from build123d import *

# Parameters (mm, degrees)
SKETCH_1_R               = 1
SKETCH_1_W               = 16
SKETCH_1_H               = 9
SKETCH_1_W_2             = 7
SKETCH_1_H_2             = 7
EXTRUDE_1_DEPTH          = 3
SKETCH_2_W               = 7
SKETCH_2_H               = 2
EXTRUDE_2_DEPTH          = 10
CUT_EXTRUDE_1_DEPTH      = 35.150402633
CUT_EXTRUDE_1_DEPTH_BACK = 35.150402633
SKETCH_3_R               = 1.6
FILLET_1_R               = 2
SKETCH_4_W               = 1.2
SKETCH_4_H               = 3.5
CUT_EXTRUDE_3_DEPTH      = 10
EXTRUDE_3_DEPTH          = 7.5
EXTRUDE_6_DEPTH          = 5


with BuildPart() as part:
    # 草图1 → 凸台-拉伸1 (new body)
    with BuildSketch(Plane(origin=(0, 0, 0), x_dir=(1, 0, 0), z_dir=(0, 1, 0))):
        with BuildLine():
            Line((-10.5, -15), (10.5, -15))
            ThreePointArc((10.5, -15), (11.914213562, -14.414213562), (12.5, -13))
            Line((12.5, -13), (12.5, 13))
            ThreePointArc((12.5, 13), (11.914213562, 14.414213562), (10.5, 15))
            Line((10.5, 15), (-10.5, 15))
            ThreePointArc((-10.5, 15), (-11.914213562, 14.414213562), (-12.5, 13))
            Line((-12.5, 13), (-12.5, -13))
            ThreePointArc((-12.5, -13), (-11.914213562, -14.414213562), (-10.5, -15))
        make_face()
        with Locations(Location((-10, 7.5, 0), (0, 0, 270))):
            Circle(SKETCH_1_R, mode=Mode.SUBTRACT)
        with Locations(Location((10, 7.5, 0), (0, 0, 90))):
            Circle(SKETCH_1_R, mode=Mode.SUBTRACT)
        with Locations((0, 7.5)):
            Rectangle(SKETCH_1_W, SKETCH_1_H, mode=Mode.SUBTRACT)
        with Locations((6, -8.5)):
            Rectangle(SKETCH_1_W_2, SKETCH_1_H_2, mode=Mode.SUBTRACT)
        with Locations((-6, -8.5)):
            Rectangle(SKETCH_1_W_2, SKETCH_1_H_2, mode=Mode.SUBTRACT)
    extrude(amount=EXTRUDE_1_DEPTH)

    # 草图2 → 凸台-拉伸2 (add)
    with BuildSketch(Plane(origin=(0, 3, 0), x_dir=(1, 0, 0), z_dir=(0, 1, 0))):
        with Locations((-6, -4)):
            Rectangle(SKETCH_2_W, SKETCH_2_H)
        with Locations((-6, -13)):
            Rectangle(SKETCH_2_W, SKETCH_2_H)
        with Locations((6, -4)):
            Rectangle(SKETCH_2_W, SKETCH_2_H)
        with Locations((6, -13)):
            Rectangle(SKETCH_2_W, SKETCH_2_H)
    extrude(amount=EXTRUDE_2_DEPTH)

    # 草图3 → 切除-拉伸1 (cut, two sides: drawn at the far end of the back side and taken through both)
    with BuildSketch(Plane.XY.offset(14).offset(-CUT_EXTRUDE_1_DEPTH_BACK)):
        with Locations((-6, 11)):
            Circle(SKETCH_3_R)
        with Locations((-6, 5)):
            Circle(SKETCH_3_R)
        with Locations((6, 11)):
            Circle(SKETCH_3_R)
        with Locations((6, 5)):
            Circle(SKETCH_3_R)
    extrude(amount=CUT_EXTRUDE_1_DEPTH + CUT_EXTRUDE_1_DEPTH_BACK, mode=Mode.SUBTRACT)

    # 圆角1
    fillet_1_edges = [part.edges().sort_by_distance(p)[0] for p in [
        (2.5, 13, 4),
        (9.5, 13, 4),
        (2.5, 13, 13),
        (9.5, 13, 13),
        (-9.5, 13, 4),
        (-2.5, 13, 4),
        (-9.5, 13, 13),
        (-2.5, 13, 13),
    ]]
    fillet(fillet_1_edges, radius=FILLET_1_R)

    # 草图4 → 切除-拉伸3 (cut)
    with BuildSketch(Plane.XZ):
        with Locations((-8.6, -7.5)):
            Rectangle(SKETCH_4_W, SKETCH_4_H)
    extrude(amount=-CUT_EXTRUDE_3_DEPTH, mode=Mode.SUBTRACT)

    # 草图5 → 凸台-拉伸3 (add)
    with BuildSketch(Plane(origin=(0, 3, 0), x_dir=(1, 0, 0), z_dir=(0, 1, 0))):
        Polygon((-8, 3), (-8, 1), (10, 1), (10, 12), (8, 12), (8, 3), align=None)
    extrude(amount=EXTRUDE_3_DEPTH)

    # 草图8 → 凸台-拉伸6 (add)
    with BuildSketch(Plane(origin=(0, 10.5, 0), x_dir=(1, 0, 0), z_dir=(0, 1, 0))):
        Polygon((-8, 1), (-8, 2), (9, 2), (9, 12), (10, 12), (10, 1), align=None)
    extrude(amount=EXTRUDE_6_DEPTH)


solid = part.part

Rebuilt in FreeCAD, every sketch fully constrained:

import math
import FreeCAD as App
import Part
import Sketcher

V = App.Vector


def edges_at(feature, points):
    """Names of the edges that pass closest to the given points."""
    edges = feature.Shape.Edges
    near = lambda p: min(range(len(edges)), key=lambda i: edges[i].distToShape(Part.Vertex(*p))[0])
    return sorted({f"Edge{near(p) + 1}" for p in points})


def add_polygon(sketch, points):
    """Adds a closed chain of lines whose ends are joined by coincident constraints."""
    first, n = sketch.GeometryCount, len(points)
    for a, b in zip(points, points[1:] + points[:1]):
        sketch.addGeometry(Part.LineSegment(App.Vector(*a, 0), App.Vector(*b, 0)), False)
    for i in range(n):
        sketch.addConstraint(Sketcher.Constraint("Coincident", first + i, 2, first + (i + 1) % n, 1))

doc = App.newDocument("Part")
params = doc.addObject("Spreadsheet::Sheet", "Params")
for row, (alias, value) in enumerate([
    ("sketch1_diameter", "2 mm"),
    ("sketch1_radius", "2 mm"),
    ("sketch1_width", "21 mm"),
    ("sketch1_width2", "7 mm"),
    ("sketch1_width3", "16 mm"),
    ("pad1_length", "3 mm"),
    ("sketch2_width", "7 mm"),
    ("sketch2_height", "2 mm"),
    ("pad2_length", "10 mm"),
    ("sketch3_diameter", "3.2 mm"),
    ("fillet_radius", "2 mm"),
    ("sketch4_width", "1.2 mm"),
    ("sketch4_height", "3.5 mm"),
    ("pocket2_length", "10 mm"),
    ("sketch5_width", "18 mm"),
    ("sketch5_width2", "2 mm"),
    ("sketch5_height", "11 mm"),
    ("pad3_length", "7.5 mm"),
    ("sketch6_width", "18 mm"),
    ("sketch6_width2", "1 mm"),
    ("sketch6_height", "11 mm"),
    ("pad4_length", "5 mm"),
], start=1):
    params.set(f"A{row}", alias)
    params.set(f"B{row}", "=" + value)
    params.setAlias(f"B{row}", alias)

body = doc.addObject("PartDesign::Body", "Body")

sketch1 = doc.addObject("Sketcher::SketchObject", "Sketch")
body.addObject(sketch1)
sketch1.AttachmentSupport = (doc.XZ_Plane, [""])
sketch1.MapMode = "FlatFace"
sketch1.addGeometry(Part.LineSegment(V(-10.5, 15, 0), V(10.5, 15, 0)), False)
sketch1.addGeometry(Part.ArcOfCircle(Part.Circle(V(10.5, 13, 0), V(0, 0, 1), 2), math.radians(0), math.radians(90)), False)
sketch1.addGeometry(Part.LineSegment(V(12.5, 13, 0), V(12.5, -13, 0)), False)
sketch1.addGeometry(Part.ArcOfCircle(Part.Circle(V(10.5, -13, 0), V(0, 0, 1), 2), math.radians(-90), math.radians(0)), False)
sketch1.addGeometry(Part.LineSegment(V(10.5, -15, 0), V(-10.5, -15, 0)), False)
sketch1.addGeometry(Part.ArcOfCircle(Part.Circle(V(-10.5, -13, 0), V(0, 0, 1), 2), math.radians(-180), math.radians(-90)), False)
sketch1.addGeometry(Part.LineSegment(V(-12.5, -13, 0), V(-12.5, 13, 0)), False)
sketch1.addGeometry(Part.ArcOfCircle(Part.Circle(V(-10.5, 13, 0), V(0, 0, 1), 2), math.radians(90), math.radians(180)), False)
add_polygon(sketch1, [(-2.5, 12), (-9.5, 12), (-9.5, 5), (-2.5, 5)])
add_polygon(sketch1, [(9.5, 12), (2.5, 12), (2.5, 5), (9.5, 5)])
sketch1.addGeometry(Part.Circle(V(-10, -7.5, 0), V(0, 0, 1), 1), False)
add_polygon(sketch1, [(8, -3), (-8, -3), (-8, -12), (8, -12)])
sketch1.addGeometry(Part.Circle(V(10, -7.5, 0), V(0, 0, 1), 1), False)
sketch1.addConstraint([
    Sketcher.Constraint("Tangent", 0, 2, 1, 2),
    Sketcher.Constraint("Tangent", 1, 1, 2, 1),
    Sketcher.Constraint("Tangent", 2, 2, 3, 2),
    Sketcher.Constraint("Tangent", 3, 1, 4, 1),
    Sketcher.Constraint("Tangent", 4, 2, 5, 2),
    Sketcher.Constraint("Tangent", 5, 1, 6, 1),
    Sketcher.Constraint("Tangent", 6, 2, 7, 2),
    Sketcher.Constraint("Tangent", 7, 1, 0, 1),
    Sketcher.Constraint("Horizontal", 0),
    Sketcher.Constraint("Vertical", 2),
    Sketcher.Constraint("Horizontal", 4),
    Sketcher.Constraint("Vertical", 6),
    Sketcher.Constraint("Horizontal", 8),
    Sketcher.Constraint("Vertical", 9),
    Sketcher.Constraint("Horizontal", 10),
    Sketcher.Constraint("Vertical", 11),
    Sketcher.Constraint("Horizontal", 12),
    Sketcher.Constraint("Vertical", 13),
    Sketcher.Constraint("Horizontal", 14),
    Sketcher.Constraint("Vertical", 15),
    Sketcher.Constraint("Horizontal", 17),
    Sketcher.Constraint("Vertical", 18),
    Sketcher.Constraint("Horizontal", 19),
    Sketcher.Constraint("Vertical", 20),
    Sketcher.Constraint("Equal", 1, 3),
    Sketcher.Constraint("Equal", 3, 5),
    Sketcher.Constraint("Equal", 5, 7),
    Sketcher.Constraint("Equal", 16, 21),
    Sketcher.Constraint("Symmetric", 1, 3, 5, 3, -1, 1),
    Sketcher.Constraint("Symmetric", 16, 3, 21, 3, -2),
    Sketcher.Constraint("Symmetric", 11, 2, 12, 2, -2),
    Sketcher.Constraint("Symmetric", 9, 2, 14, 2, -2),
    Sketcher.Constraint("Equal", 14, 9),
    Sketcher.Constraint("Diameter", 16, 2.0),
    Sketcher.Constraint("Radius", 1, 2.0),
    Sketcher.Constraint("DistanceX", 0, 1, 0, 2, 21.0),
    Sketcher.Constraint("DistanceX", 8, 2, 8, 1, 7.0),
    Sketcher.Constraint("DistanceX", 17, 2, 17, 1, 16.0),
    Sketcher.Constraint("DistanceY", 2, 2, 2, 1, 26.0),
    Sketcher.Constraint("DistanceY", 18, 2, 18, 1, 9.0),
    Sketcher.Constraint("DistanceX", 16, 3, -1, 1, 10.0),
    Sketcher.Constraint("DistanceY", -1, 1, 8, 2, 12.0),
    Sketcher.Constraint("DistanceX", 17, 2, -1, 1, 8.0),
    Sketcher.Constraint("DistanceY", 17, 2, -1, 1, 3.0),
    Sketcher.Constraint("DistanceX", 7, 3, 8, 2, 1.0),
    Sketcher.Constraint("DistanceY", 16, 3, -1, 1, 7.5),
])
sketch1.setExpression("Constraints[45]", "Params.sketch1_diameter")
sketch1.setExpression("Constraints[46]", "Params.sketch1_radius")
sketch1.setExpression("Constraints[47]", "Params.sketch1_width")
sketch1.setExpression("Constraints[48]", "Params.sketch1_width2")
sketch1.setExpression("Constraints[49]", "Params.sketch1_width3")
pad1 = doc.addObject("PartDesign::Pad", "Pad")
body.addObject(pad1)
pad1.Profile = sketch1
pad1.setExpression("Length", "Params.pad1_length")
pad1.Reversed = True

sketch2 = doc.addObject("Sketcher::SketchObject", "Sketch001")
body.addObject(sketch2)
sketch2.AttachmentSupport = (doc.XZ_Plane, [""])
sketch2.MapMode = "FlatFace"
sketch2.AttachmentOffset = App.Placement(V(0, 0, -3), App.Rotation())
add_polygon(sketch2, [(-9.5, 3), (-9.5, 5), (-2.5, 5), (-2.5, 3)])
add_polygon(sketch2, [(-9.5, 12), (-9.5, 14), (-2.5, 14), (-2.5, 12)])
add_polygon(sketch2, [(2.5, 3), (2.5, 5), (9.5, 5), (9.5, 3)])
add_polygon(sketch2, [(2.5, 12), (2.5, 14), (9.5, 14), (9.5, 12)])
sketch2.addConstraint([
    Sketcher.Constraint("Vertical", 0),
    Sketcher.Constraint("Horizontal", 1),
    Sketcher.Constraint("Vertical", 2),
    Sketcher.Constraint("Horizontal", 3),
    Sketcher.Constraint("Vertical", 4),
    Sketcher.Constraint("Horizontal", 5),
    Sketcher.Constraint("Vertical", 6),
    Sketcher.Constraint("Horizontal", 7),
    Sketcher.Constraint("Vertical", 8),
    Sketcher.Constraint("Horizontal", 9),
    Sketcher.Constraint("Vertical", 10),
    Sketcher.Constraint("Horizontal", 11),
    Sketcher.Constraint("Vertical", 12),
    Sketcher.Constraint("Horizontal", 13),
    Sketcher.Constraint("Vertical", 14),
    Sketcher.Constraint("Horizontal", 15),
    Sketcher.Constraint("Symmetric", 1, 2, 8, 2, -2),
    Sketcher.Constraint("Symmetric", 3, 2, 10, 2, -2),
    Sketcher.Constraint("Symmetric", 5, 2, 12, 2, -2),
    Sketcher.Constraint("Symmetric", 7, 2, 14, 2, -2),
    Sketcher.Constraint("Vertical", 3, 2, 4, 2),
    Sketcher.Constraint("Vertical", 2, 2, 5, 2),
    Sketcher.Constraint("Equal", 2, 4),
    Sketcher.Constraint("DistanceX", 1, 1, 1, 2, 7.0),
    Sketcher.Constraint("DistanceY", 0, 1, 0, 2, 2.0),
    Sketcher.Constraint("DistanceY", -1, 1, 0, 2, 5.0),
    Sketcher.Constraint("DistanceY", -1, 1, 4, 2, 14.0),
    Sketcher.Constraint("DistanceX", 1, 2, 8, 2, 5.0),
])
sketch2.setExpression("Constraints[39]", "Params.sketch2_width")
sketch2.setExpression("Constraints[40]", "Params.sketch2_height")
pad2 = doc.addObject("PartDesign::Pad", "Pad001")
body.addObject(pad2)
pad2.Profile = sketch2
pad2.setExpression("Length", "Params.pad2_length")
pad2.Reversed = True

sketch3 = doc.addObject("Sketcher::SketchObject", "Sketch002")
body.addObject(sketch3)
sketch3.AttachmentSupport = (doc.XY_Plane, [""])
sketch3.MapMode = "FlatFace"
sketch3.AttachmentOffset = App.Placement(V(0, 0, 14), App.Rotation())
sketch3.addGeometry([
    Part.Circle(V(-6, 11, 0), V(0, 0, 1), 1.6),
    Part.Circle(V(-6, 5, 0), V(0, 0, 1), 1.6),
    Part.Circle(V(6, 11, 0), V(0, 0, 1), 1.6),
    Part.Circle(V(6, 5, 0), V(0, 0, 1), 1.6),
], False)
sketch3.addConstraint([
    Sketcher.Constraint("Equal", 0, 1),
    Sketcher.Constraint("Equal", 1, 2),
    Sketcher.Constraint("Equal", 2, 3),
    Sketcher.Constraint("Symmetric", 0, 3, 2, 3, -2),
    Sketcher.Constraint("Symmetric", 1, 3, 3, 3, -2),
    Sketcher.Constraint("Vertical", 0, 3, 1, 3),
    Sketcher.Constraint("Diameter", 0, 3.2),
    Sketcher.Constraint("DistanceX", 0, 3, -1, 1, 6.0),
    Sketcher.Constraint("DistanceY", -1, 1, 0, 3, 11.0),
    Sketcher.Constraint("DistanceY", -1, 1, 1, 3, 5.0),
])
sketch3.setExpression("Constraints[6]", "Params.sketch3_diameter")
pocket1 = doc.addObject("PartDesign::Pocket", "Pocket")
body.addObject(pocket1)
pocket1.Profile = sketch3
pocket1.Type = "ThroughAll"
pocket1.Midplane = True
doc.recompute()

fillet = doc.addObject("PartDesign::Fillet", "Fillet")
body.addObject(fillet)
fillet.Base = (pocket1, edges_at(pocket1, [
    (2.5, 13, 4),
    (9.5, 13, 4),
    (2.5, 13, 13),
    (9.5, 13, 13),
    (-9.5, 13, 4),
    (-2.5, 13, 4),
    (-9.5, 13, 13),
    (-2.5, 13, 13),
]))
fillet.setExpression("Radius", "Params.fillet_radius")

sketch4 = doc.addObject("Sketcher::SketchObject", "Sketch003")
body.addObject(sketch4)
sketch4.AttachmentSupport = (doc.XZ_Plane, [""])
sketch4.MapMode = "FlatFace"
add_polygon(sketch4, [(-9.2, -5.8), (-9.2, -9.2), (-8, -9.2), (-8, -5.8)])
sketch4.addConstraint([
    Sketcher.Constraint("Vertical", 0),
    Sketcher.Constraint("Horizontal", 1),
    Sketcher.Constraint("Vertical", 2),
    Sketcher.Constraint("Horizontal", 3),
    Sketcher.Constraint("DistanceX", 1, 1, 1, 2, 1.2),
    Sketcher.Constraint("DistanceY", 0, 2, 0, 1, 3.5),
    Sketcher.Constraint("DistanceX", 1, 2, -1, 1, 8.0),
    Sketcher.Constraint("DistanceY", 0, 2, -1, 1, 9.25),
])
sketch4.setExpression("Constraints[8]", "Params.sketch4_width")
sketch4.setExpression("Constraints[9]", "Params.sketch4_height")
pocket2 = doc.addObject("PartDesign::Pocket", "Pocket001")
body.addObject(pocket2)
pocket2.Profile = sketch4
pocket2.setExpression("Length", "Params.pocket2_length")

sketch5 = doc.addObject("Sketcher::SketchObject", "Sketch004")
body.addObject(sketch5)
sketch5.AttachmentSupport = (doc.XZ_Plane, [""])
sketch5.MapMode = "FlatFace"
sketch5.AttachmentOffset = App.Placement(V(0, 0, -3), App.Rotation())
add_polygon(sketch5, [(-8, -3), (-8, -1), (10, -1), (10, -12), (8, -12), (8, -3)])
sketch5.addConstraint([
    Sketcher.Constraint("Vertical", 0),
    Sketcher.Constraint("Horizontal", 1),
    Sketcher.Constraint("Vertical", 2),
    Sketcher.Constraint("Horizontal", 3),
    Sketcher.Constraint("Vertical", 4),
    Sketcher.Constraint("Horizontal", 5),
    Sketcher.Constraint("Equal", 3, 0),
    Sketcher.Constraint("DistanceX", 1, 1, 1, 2, 18.0),
    Sketcher.Constraint("DistanceX", 3, 2, 3, 1, 2.0),
    Sketcher.Constraint("DistanceY", 2, 2, 2, 1, 11.0),
    Sketcher.Constraint("DistanceX", 0, 2, -1, 1, 8.0),
    Sketcher.Constraint("DistanceY", 0, 2, -1, 1, 1.0),
])
sketch5.setExpression("Constraints[13]", "Params.sketch5_width")
sketch5.setExpression("Constraints[14]", "Params.sketch5_width2")
sketch5.setExpression("Constraints[15]", "Params.sketch5_height")
pad3 = doc.addObject("PartDesign::Pad", "Pad002")
body.addObject(pad3)
pad3.Profile = sketch5
pad3.setExpression("Length", "Params.pad3_length")
pad3.Reversed = True

sketch6 = doc.addObject("Sketcher::SketchObject", "Sketch005")
body.addObject(sketch6)
sketch6.AttachmentSupport = (doc.XZ_Plane, [""])
sketch6.MapMode = "FlatFace"
sketch6.AttachmentOffset = App.Placement(V(0, 0, -10.5), App.Rotation())
add_polygon(sketch6, [(-8, -2), (-8, -1), (10, -1), (10, -12), (9, -12), (9, -2)])
sketch6.addConstraint([
    Sketcher.Constraint("Vertical", 0),
    Sketcher.Constraint("Horizontal", 1),
    Sketcher.Constraint("Vertical", 2),
    Sketcher.Constraint("Horizontal", 3),
    Sketcher.Constraint("Vertical", 4),
    Sketcher.Constraint("Horizontal", 5),
    Sketcher.Constraint("Equal", 3, 0),
    Sketcher.Constraint("DistanceX", 1, 1, 1, 2, 18.0),
    Sketcher.Constraint("DistanceX", 3, 2, 3, 1, 1.0),
    Sketcher.Constraint("DistanceY", 2, 2, 2, 1, 11.0),
    Sketcher.Constraint("DistanceX", 0, 2, -1, 1, 8.0),
    Sketcher.Constraint("DistanceY", 0, 2, -1, 1, 1.0),
])
sketch6.setExpression("Constraints[13]", "Params.sketch6_width")
sketch6.setExpression("Constraints[14]", "Params.sketch6_width2")
sketch6.setExpression("Constraints[15]", "Params.sketch6_height")
pad4 = doc.addObject("PartDesign::Pad", "Pad003")
body.addObject(pad4)
pad4.Profile = sketch6
pad4.setExpression("Length", "Params.pad4_length")
pad4.Reversed = True

doc.recompute()
